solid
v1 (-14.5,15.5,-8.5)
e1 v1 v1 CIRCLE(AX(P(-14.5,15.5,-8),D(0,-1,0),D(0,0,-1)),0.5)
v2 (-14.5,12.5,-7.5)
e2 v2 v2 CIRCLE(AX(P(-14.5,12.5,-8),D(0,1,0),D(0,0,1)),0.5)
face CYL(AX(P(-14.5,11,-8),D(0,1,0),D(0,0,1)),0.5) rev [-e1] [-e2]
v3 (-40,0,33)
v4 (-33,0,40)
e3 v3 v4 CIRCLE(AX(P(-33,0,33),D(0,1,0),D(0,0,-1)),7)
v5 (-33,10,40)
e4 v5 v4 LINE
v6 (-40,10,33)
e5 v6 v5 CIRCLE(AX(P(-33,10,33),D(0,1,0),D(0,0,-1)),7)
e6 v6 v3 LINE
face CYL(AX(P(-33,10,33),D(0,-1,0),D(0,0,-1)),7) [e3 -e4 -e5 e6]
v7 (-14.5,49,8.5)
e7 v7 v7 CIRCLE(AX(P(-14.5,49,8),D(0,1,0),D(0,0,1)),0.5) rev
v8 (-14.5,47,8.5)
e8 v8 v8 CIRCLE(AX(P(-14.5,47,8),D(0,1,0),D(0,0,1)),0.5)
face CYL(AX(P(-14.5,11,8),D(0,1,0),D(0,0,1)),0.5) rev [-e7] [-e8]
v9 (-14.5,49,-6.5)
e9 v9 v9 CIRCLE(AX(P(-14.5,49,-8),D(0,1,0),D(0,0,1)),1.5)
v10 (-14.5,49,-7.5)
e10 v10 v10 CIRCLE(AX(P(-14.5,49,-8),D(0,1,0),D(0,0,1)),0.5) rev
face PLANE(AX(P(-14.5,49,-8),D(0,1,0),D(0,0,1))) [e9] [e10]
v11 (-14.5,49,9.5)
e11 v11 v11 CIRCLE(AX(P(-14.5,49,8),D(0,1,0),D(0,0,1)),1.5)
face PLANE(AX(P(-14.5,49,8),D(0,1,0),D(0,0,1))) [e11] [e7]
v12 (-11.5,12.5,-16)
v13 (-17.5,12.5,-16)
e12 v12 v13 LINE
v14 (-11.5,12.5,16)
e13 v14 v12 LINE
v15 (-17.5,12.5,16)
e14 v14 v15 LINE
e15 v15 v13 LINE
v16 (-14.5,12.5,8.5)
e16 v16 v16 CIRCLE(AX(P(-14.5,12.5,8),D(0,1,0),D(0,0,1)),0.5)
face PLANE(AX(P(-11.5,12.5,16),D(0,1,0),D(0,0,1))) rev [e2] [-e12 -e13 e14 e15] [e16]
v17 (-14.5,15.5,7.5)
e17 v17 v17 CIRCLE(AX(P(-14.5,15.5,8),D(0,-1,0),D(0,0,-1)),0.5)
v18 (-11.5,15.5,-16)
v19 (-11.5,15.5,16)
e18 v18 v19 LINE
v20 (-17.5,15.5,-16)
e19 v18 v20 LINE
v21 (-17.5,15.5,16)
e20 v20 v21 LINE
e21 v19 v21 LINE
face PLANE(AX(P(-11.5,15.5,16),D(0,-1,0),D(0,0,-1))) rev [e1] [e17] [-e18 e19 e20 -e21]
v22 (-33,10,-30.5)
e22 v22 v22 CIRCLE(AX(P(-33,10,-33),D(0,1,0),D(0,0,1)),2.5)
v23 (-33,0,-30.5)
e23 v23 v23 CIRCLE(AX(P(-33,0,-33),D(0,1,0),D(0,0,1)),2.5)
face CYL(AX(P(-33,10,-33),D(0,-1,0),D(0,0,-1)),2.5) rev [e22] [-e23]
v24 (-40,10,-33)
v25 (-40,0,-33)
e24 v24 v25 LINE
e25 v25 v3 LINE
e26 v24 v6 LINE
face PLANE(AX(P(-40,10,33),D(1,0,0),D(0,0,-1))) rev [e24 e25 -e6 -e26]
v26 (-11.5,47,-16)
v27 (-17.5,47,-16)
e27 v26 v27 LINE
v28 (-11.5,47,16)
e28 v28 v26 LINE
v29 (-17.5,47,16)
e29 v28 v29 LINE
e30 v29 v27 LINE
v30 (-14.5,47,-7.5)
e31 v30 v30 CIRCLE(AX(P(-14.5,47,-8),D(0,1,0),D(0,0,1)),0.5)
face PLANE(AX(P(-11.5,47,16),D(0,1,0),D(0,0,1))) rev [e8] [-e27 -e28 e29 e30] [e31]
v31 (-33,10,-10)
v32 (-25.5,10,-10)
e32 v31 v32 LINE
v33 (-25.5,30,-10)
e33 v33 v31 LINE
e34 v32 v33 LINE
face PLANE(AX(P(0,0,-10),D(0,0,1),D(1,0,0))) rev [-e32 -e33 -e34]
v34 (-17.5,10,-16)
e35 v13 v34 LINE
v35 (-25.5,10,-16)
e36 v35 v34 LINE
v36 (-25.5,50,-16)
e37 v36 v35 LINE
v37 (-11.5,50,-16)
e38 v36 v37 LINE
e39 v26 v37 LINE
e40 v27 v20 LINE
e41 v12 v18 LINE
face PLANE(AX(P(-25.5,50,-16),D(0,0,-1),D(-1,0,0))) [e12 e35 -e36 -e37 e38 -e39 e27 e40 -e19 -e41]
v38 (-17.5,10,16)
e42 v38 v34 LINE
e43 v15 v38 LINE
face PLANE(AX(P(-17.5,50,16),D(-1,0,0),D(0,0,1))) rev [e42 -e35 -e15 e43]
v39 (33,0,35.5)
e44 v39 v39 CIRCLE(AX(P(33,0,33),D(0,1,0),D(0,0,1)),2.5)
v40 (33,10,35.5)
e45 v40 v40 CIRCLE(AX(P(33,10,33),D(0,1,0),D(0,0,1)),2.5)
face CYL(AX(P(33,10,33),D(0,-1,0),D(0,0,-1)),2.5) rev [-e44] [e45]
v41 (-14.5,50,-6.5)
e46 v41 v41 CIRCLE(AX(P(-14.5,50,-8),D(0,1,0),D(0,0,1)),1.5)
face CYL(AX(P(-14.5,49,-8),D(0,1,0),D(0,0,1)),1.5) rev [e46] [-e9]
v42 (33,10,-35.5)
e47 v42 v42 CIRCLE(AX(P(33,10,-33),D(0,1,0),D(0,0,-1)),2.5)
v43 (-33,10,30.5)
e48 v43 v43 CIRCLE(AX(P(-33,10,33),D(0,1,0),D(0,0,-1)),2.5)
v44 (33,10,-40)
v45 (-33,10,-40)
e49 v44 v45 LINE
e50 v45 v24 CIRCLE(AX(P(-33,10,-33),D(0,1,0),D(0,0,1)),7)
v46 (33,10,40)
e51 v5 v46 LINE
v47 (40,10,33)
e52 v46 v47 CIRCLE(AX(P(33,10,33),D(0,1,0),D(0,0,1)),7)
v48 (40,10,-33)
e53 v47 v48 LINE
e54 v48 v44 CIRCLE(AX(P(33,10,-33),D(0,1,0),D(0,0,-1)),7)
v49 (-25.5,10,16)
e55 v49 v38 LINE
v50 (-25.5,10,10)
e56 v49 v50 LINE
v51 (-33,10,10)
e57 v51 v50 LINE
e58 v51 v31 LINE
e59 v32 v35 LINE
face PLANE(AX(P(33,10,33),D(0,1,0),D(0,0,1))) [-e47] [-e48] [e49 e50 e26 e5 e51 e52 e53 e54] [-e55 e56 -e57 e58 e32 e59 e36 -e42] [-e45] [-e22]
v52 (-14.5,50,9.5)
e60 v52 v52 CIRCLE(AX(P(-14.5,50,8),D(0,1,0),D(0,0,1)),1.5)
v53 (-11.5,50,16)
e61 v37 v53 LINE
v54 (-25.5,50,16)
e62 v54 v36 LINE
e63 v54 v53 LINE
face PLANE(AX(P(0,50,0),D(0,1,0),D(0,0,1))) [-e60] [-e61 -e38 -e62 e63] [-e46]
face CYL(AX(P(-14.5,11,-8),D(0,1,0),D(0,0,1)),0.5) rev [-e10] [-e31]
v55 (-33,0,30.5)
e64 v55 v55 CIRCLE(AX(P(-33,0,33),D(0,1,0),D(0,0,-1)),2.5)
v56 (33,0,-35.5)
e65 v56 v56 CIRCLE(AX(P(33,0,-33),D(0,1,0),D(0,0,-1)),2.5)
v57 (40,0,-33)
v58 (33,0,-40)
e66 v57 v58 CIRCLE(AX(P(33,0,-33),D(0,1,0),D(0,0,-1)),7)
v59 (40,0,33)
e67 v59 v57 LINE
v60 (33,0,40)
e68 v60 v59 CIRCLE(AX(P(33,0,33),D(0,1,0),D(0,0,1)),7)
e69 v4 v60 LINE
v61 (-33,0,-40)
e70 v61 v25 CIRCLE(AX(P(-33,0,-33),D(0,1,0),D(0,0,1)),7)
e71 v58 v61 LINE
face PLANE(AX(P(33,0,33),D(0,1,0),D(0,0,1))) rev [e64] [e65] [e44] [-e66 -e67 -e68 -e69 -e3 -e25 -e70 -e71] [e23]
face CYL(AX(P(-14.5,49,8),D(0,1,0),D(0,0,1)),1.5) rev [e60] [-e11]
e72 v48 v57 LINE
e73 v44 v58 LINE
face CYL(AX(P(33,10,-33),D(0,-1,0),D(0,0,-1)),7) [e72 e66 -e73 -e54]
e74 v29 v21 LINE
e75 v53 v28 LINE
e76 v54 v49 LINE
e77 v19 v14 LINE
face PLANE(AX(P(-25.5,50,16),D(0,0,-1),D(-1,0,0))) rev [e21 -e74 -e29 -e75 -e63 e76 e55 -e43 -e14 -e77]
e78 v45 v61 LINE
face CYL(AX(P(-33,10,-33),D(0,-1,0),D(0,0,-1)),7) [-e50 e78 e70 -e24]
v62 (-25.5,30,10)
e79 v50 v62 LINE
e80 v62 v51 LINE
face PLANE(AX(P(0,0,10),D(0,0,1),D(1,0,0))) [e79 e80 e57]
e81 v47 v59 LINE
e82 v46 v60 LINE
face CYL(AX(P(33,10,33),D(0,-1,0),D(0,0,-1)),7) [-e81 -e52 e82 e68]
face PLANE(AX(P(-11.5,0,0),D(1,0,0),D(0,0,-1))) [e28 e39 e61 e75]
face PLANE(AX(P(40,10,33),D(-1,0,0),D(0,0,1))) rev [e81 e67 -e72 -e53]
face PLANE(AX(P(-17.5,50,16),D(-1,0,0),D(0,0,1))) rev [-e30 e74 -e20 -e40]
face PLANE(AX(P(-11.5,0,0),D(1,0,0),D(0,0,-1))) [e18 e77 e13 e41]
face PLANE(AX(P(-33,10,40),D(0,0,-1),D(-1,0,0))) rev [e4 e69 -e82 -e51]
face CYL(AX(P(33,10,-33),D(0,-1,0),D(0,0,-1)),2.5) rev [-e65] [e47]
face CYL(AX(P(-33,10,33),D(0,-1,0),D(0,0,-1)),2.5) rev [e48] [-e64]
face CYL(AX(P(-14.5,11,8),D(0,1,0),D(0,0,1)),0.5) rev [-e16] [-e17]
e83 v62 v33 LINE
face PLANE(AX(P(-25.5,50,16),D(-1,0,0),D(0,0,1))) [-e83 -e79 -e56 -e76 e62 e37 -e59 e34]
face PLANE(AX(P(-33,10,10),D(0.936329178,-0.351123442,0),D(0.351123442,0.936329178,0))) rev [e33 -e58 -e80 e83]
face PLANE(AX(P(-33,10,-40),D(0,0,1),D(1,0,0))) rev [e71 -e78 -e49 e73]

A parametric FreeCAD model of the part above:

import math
import FreeCAD as App
import Part
import Sketcher
from FreeCAD import Vector
Q = App.Units.Quantity

doc = App.newDocument("Part")
body = doc.addObject("PartDesign::Body", "Body")

sketch1 = body.newObject("Sketcher::SketchObject", "Sketch")
sketch1.AttachmentSupport = (doc.getObject("XZ_Plane"), [""])
sketch1.MapMode = "FlatFace"
sketch1.addGeometry([
    Part.LineSegment(Vector(-33, 40, 0), Vector(33, 40, 0)),
    Part.ArcOfCircle(Part.Circle(Vector(33, 33, 0), Vector(0, 0, 1), 7), math.radians(0), math.radians(90)),
    Part.LineSegment(Vector(40, 33, 0), Vector(40, -33, 0)),
    Part.ArcOfCircle(Part.Circle(Vector(33, -33, 0), Vector(0, 0, 1), 7), math.radians(-90), math.radians(0)),
    Part.LineSegment(Vector(33, -40, 0), Vector(-33, -40, 0)),
    Part.ArcOfCircle(Part.Circle(Vector(-33, -33, 0), Vector(0, 0, 1), 7), math.radians(-180), math.radians(-90)),
    Part.LineSegment(Vector(-40, -33, 0), Vector(-40, 33, 0)),
    Part.ArcOfCircle(Part.Circle(Vector(-33, 33, 0), Vector(0, 0, 1), 7), math.radians(90), math.radians(180)),
    Part.Circle(Vector(-33, 33, 0), Vector(0, 0, 1), 2.5),
    Part.Circle(Vector(33, 33, 0), Vector(0, 0, 1), 2.5),
    Part.Circle(Vector(-33, -33, 0), Vector(0, 0, 1), 2.5),
    Part.Circle(Vector(33, -33, 0), Vector(0, 0, 1), 2.5),
], False)
sketch1.addConstraint([
    Sketcher.Constraint("Tangent", 0, 2, 1, 2),
    Sketcher.Constraint("Tangent", 1, 1, 2, 1),
    Sketcher.Constraint("Tangent", 2, 2, 3, 2),
    Sketcher.Constraint("Tangent", 3, 1, 4, 1),
    Sketcher.Constraint("Tangent", 4, 2, 5, 2),
    Sketcher.Constraint("Tangent", 5, 1, 6, 1),
    Sketcher.Constraint("Tangent", 6, 2, 7, 2),
    Sketcher.Constraint("Tangent", 7, 1, 0, 1),
    Sketcher.Constraint("Horizontal", 0),
    Sketcher.Constraint("Vertical", 2),
    Sketcher.Constraint("Horizontal", 4),
    Sketcher.Constraint("Vertical", 6),
    Sketcher.Constraint("Coincident", 8, 3, 7, 3),
    Sketcher.Constraint("Coincident", 9, 3, 1, 3),
    Sketcher.Constraint("Coincident", 10, 3, 5, 3),
    Sketcher.Constraint("Coincident", 11, 3, 3, 3),
    Sketcher.Constraint("Equal", 1, 3),
    Sketcher.Constraint("Equal", 3, 5),
    Sketcher.Constraint("Equal", 5, 7),
    Sketcher.Constraint("Equal", 8, 9),
    Sketcher.Constraint("Equal", 9, 10),
    Sketcher.Constraint("Equal", 10, 11),
    Sketcher.Constraint("Symmetric", 1, 3, 5, 3, -1, 1),
    Sketcher.Constraint("Equal", 4, 2),
    Sketcher.Constraint("Diameter", 8, Q("5 mm")),
    Sketcher.Constraint("Radius", 1, Q("7 mm")),
    Sketcher.Constraint("DistanceX", 0, 1, 0, 2, Q("66 mm")),
])
pad1 = body.newObject("PartDesign::Pad", "Pad")
pad1.Profile = sketch1
pad1.Length = 10
pad1.Reversed = True

sketch2 = body.newObject("Sketcher::SketchObject", "Sketch001")
sketch2.AttachmentSupport = (doc.getObject("XZ_Plane"), [""])
sketch2.MapMode = "FlatFace"
sketch2.AttachmentOffset = App.Placement(Vector(0, 0, -10), App.Rotation())
sketch2.addGeometry([
    Part.LineSegment(Vector(-25.5, -16, 0), Vector(-25.5, 16, 0)),
    Part.LineSegment(Vector(-25.5, 16, 0), Vector(-17.5, 16, 0)),
    Part.LineSegment(Vector(-17.5, 16, 0), Vector(-17.5, -16, 0)),
    Part.LineSegment(Vector(-17.5, -16, 0), Vector(-25.5, -16, 0)),
], False)
sketch2.addConstraint([
    Sketcher.Constraint("Coincident", 0, 2, 1, 1),
    Sketcher.Constraint("Coincident", 1, 2, 2, 1),
    Sketcher.Constraint("Coincident", 2, 2, 3, 1),
    Sketcher.Constraint("Coincident", 3, 2, 0, 1),
    Sketcher.Constraint("Vertical", 0),
    Sketcher.Constraint("Horizontal", 1),
    Sketcher.Constraint("Vertical", 2),
    Sketcher.Constraint("Horizontal", 3),
    Sketcher.Constraint("DistanceX", 1, 1, 1, 2, Q("8 mm")),
    Sketcher.Constraint("DistanceY", 0, 1, 0, 2, Q("32 mm")),
    Sketcher.Constraint("DistanceY", -1, 1, 0, 2, Q("16 mm")),
    Sketcher.Constraint("DistanceX", 0, 2, -1, 1, Q("25.5 mm")),
])
pad2 = body.newObject("PartDesign::Pad", "Pad001")
pad2.Profile = sketch2
pad2.Length = 40
pad2.Reversed = True

sketch3 = body.newObject("Sketcher::SketchObject", "Sketch002")
sketch3.AttachmentSupport = (doc.getObject("XY_Plane"), [""])
sketch3.MapMode = "FlatFace"
sketch3.addGeometry([
    Part.LineSegment(Vector(-25.5, 30, 0), Vector(-33, 10, 0)),
    Part.LineSegment(Vector(-33, 10, 0), Vector(-25.5, 10, 0)),
    Part.LineSegment(Vector(-25.5, 10, 0), Vector(-25.5, 30, 0)),
], False)
sketch3.addConstraint([
    Sketcher.Constraint("Coincident", 0, 2, 1, 1),
    Sketcher.Constraint("Coincident", 1, 2, 2, 1),
    Sketcher.Constraint("Coincident", 2, 2, 0, 1),
    Sketcher.Constraint("Horizontal", 1),
    Sketcher.Constraint("Vertical", 2),
    Sketcher.Constraint("DistanceY", 2, 1, 2, 2, Q("20 mm")),
    Sketcher.Constraint("DistanceX", 1, 1, 1, 2, Q("7.5 mm")),
    Sketcher.Constraint("DistanceX", 0, 2, -1, 1, Q("33 mm")),
    Sketcher.Constraint("DistanceY", -1, 1, 0, 2, Q("10 mm")),
])
pad3 = body.newObject("PartDesign::Pad", "Pad002")
pad3.Profile = sketch3
pad3.Length = 20
pad3.Midplane = True

sketch4 = body.newObject("Sketcher::SketchObject", "Sketch003")
sketch4.AttachmentSupport = (doc.getObject("YZ_Plane"), [""])
sketch4.MapMode = "FlatFace"
sketch4.AttachmentOffset = App.Placement(Vector(0, 0, -17.5), App.Rotation())
sketch4.addGeometry([
    Part.LineSegment(Vector(50, 16, 0), Vector(47, 16, 0)),
    Part.LineSegment(Vector(47, 16, 0), Vector(47, -16, 0)),
    Part.LineSegment(Vector(47, -16, 0), Vector(50, -16, 0)),
    Part.LineSegment(Vector(50, -16, 0), Vector(50, 16, 0)),
    Part.LineSegment(Vector(15.5, 16, 0), Vector(12.5, 16, 0)),
    Part.LineSegment(Vector(12.5, 16, 0), Vector(12.5, -16, 0)),
    Part.LineSegment(Vector(12.5, -16, 0), Vector(15.5, -16, 0)),
    Part.LineSegment(Vector(15.5, -16, 0), Vector(15.5, 16, 0)),
], False)
sketch4.addConstraint([
    Sketcher.Constraint("Coincident", 0, 2, 1, 1),
    Sketcher.Constraint("Coincident", 1, 2, 2, 1),
    Sketcher.Constraint("Coincident", 2, 2, 3, 1),
    Sketcher.Constraint("Coincident", 3, 2, 0, 1),
    Sketcher.Constraint("Coincident", 4, 2, 5, 1),
    Sketcher.Constraint("Coincident", 5, 2, 6, 1),
    Sketcher.Constraint("Coincident", 6, 2, 7, 1),
    Sketcher.Constraint("Coincident", 7, 2, 4, 1),
    Sketcher.Constraint("Horizontal", 0),
    Sketcher.Constraint("Vertical", 1),
    Sketcher.Constraint("Horizontal", 2),
    Sketcher.Constraint("Vertical", 3),
    Sketcher.Constraint("Horizontal", 4),
    Sketcher.Constraint("Vertical", 5),
    Sketcher.Constraint("Horizontal", 6),
    Sketcher.Constraint("Vertical", 7),
    Sketcher.Constraint("Horizontal", 3, 2, 4, 2),
    Sketcher.Constraint("Horizontal", 2, 2, 5, 2),
    Sketcher.Constraint("Equal", 2, 4),
    Sketcher.Constraint("DistanceX", 0, 2, 0, 1, Q("3 mm")),
    Sketcher.Constraint("DistanceY", 1, 2, 1, 1, Q("32 mm")),
    Sketcher.Constraint("DistanceX", -1, 1, 0, 2, Q("47 mm")),
    Sketcher.Constraint("DistanceY", -1, 1, 0, 2, Q("16 mm")),
    Sketcher.Constraint("DistanceX", -1, 1, 4, 2, Q("12.5 mm")),
])
pad4 = body.newObject("PartDesign::Pad", "Pad003")
pad4.Profile = sketch4
pad4.Length = 6

sketch5 = body.newObject("Sketcher::SketchObject", "Sketch004")
sketch5.AttachmentSupport = (doc.getObject("XZ_Plane"), [""])
sketch5.MapMode = "FlatFace"
sketch5.AttachmentOffset = App.Placement(Vector(0, 0, -50), App.Rotation())
sketch5.addGeometry([
    Part.Circle(Vector(-14.5, 8, 0), Vector(0, 0, 1), 0.5),
    Part.Circle(Vector(-14.5, -8, 0), Vector(0, 0, 1), 0.5),
], False)
sketch5.addConstraint([
    Sketcher.Constraint("Equal", 0, 1),
    Sketcher.Constraint("Symmetric", 0, 3, 1, 3, -1),
    Sketcher.Constraint("Diameter", 0, Q("1 mm")),
    Sketcher.Constraint("DistanceY", -1, 1, 0, 3, Q("8 mm")),
    Sketcher.Constraint("DistanceX", 0, 3, -1, 1, Q("14.5 mm")),
])
pocket1 = body.newObject("PartDesign::Pocket", "Pocket")
pocket1.Profile = sketch5
pocket1.Length = 39
pocket1.Reversed = True

sketch6 = body.newObject("Sketcher::SketchObject", "Sketch005")
sketch6.AttachmentSupport = (doc.getObject("XZ_Plane"), [""])
sketch6.MapMode = "FlatFace"
sketch6.AttachmentOffset = App.Placement(Vector(0, 0, -50), App.Rotation())
sketch6.addGeometry([
    Part.Circle(Vector(-14.5, -8, 0), Vector(0, 0, 1), 1.5),
    Part.Circle(Vector(-14.5, 8, 0), Vector(0, 0, 1), 1.5),
], False)
sketch6.addConstraint([
    Sketcher.Constraint("Equal", 0, 1),
    Sketcher.Constraint("Symmetric", 0, 3, 1, 3, -1),
    Sketcher.Constraint("Diameter", 0, Q("3 mm")),
    Sketcher.Constraint("DistanceY", 0, 3, -1, 1, Q("8 mm")),
    Sketcher.Constraint("DistanceX", 0, 3, -1, 1, Q("14.5 mm")),
])
pocket2 = body.newObject("PartDesign::Pocket", "Pocket001")
pocket2.Profile = sketch6
pocket2.Length = 1
pocket2.Reversed = True

doc.recompute()
